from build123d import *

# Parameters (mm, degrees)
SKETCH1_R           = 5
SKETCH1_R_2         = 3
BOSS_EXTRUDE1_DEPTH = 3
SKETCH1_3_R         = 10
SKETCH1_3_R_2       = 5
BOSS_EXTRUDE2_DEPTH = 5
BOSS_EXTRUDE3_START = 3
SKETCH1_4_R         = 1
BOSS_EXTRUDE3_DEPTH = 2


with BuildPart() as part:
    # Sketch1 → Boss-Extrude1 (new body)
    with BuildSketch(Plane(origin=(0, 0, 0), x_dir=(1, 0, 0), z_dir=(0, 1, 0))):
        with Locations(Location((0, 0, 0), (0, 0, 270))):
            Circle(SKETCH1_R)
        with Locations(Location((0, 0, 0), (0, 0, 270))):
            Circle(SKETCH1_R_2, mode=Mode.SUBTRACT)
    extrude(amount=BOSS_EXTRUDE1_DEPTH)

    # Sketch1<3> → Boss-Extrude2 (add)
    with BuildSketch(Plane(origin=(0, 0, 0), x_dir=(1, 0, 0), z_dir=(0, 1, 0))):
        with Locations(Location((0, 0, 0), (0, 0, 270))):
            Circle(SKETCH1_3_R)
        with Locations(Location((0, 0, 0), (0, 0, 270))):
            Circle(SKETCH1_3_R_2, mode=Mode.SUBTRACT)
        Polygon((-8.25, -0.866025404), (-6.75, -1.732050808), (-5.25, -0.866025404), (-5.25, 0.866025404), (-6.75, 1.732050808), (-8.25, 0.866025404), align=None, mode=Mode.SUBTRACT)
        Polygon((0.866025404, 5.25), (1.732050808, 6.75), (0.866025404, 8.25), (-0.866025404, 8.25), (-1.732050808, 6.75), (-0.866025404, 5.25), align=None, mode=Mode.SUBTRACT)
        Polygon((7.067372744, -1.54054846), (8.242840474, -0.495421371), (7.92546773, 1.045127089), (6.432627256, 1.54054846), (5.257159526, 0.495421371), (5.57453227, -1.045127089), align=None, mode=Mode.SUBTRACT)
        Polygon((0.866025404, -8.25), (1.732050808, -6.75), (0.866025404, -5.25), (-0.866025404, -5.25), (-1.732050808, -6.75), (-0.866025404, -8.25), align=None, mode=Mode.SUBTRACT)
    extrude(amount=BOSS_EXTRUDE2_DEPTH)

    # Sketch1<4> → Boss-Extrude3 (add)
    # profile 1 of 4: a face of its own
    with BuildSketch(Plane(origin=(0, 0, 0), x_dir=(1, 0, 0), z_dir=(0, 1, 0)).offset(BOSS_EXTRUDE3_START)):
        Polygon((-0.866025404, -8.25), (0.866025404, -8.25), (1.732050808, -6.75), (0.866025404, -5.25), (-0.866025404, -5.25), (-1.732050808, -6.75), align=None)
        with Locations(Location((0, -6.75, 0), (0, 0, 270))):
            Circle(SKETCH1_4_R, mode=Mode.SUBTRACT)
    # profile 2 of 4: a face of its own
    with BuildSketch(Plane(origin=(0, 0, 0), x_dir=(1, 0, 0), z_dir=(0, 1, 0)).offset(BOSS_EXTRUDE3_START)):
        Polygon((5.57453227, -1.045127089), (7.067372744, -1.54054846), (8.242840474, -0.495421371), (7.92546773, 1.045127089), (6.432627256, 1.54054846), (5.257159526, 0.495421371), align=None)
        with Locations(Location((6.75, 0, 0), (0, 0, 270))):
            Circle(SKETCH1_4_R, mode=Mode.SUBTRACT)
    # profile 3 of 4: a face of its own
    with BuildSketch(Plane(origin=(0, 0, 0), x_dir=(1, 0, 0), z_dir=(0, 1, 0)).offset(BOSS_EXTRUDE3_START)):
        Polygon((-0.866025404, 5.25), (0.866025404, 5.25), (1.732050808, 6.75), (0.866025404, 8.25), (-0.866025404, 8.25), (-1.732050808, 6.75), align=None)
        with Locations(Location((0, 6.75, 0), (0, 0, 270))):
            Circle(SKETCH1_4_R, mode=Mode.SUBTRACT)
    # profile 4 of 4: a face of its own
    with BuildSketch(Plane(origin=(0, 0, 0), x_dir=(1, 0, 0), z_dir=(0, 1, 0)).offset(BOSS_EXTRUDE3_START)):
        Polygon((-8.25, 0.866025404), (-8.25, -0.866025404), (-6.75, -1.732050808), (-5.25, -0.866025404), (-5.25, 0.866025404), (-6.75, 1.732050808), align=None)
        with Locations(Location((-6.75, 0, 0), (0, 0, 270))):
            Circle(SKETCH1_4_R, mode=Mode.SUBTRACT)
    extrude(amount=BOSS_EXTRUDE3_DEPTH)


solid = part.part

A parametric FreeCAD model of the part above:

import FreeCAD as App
import Part
import Sketcher
from FreeCAD import Vector
Q = App.Units.Quantity

doc = App.newDocument("Part")
params = doc.addObject("Spreadsheet::Sheet", "Params")
for row, (alias, value) in enumerate([
    ("sketch1_diameter", "10 mm"),
    ("sketch1_diameter2", "6 mm"),
    ("pad1_length", "3 mm"),
    ("sketch2_diameter", "20 mm"),
    ("sketch2_diameter2", "10 mm"),
    ("pad2_length", "5 mm"),
    ("sketch3_diameter", "2 mm"),
    ("pad3_length", "2 mm"),
], start=1):
    params.set(f"A{row}", alias)
    params.set(f"B{row}", "=" + value)
    params.setAlias(f"B{row}", alias)

body = doc.addObject("PartDesign::Body", "Body")

sketch1 = body.newObject("Sketcher::SketchObject", "Sketch")
sketch1.AttachmentSupport = (doc.getObject("XZ_Plane"), [""])
sketch1.MapMode = "FlatFace"
sketch1.addGeometry(Part.Circle(Vector(0, 0, 0), Vector(0, 0, 1), 5), False)
sketch1.addGeometry(Part.Circle(Vector(0, 0, 0), Vector(0, 0, 1), 3), False)
sketch1.addConstraint(Sketcher.Constraint("Coincident", 0, 3, -1, 1))
sketch1.addConstraint(Sketcher.Constraint("Coincident", 1, 3, -1, 1))
sketch1.addConstraint(Sketcher.Constraint("Diameter", 0, Q("10 mm")))
sketch1.addConstraint(Sketcher.Constraint("Diameter", 1, Q("6 mm")))
sketch1.setExpression("Constraints[2]", "Params.sketch1_diameter")
sketch1.setExpression("Constraints[3]", "Params.sketch1_diameter2")
pad1 = body.newObject("PartDesign::Pad", "Pad")
pad1.Profile = sketch1
pad1.setExpression("Length", "Params.pad1_length")
pad1.Reversed = True

sketch2 = body.newObject("Sketcher::SketchObject", "Sketch001")
sketch2.AttachmentSupport = (doc.getObject("XZ_Plane"), [""])
sketch2.MapMode = "FlatFace"
sketch2.addGeometry(Part.Circle(Vector(0, 0, 0), Vector(0, 0, 1), 10), False)
sketch2.addGeometry(Part.LineSegment(Vector(-6.8, 1.7, 0), Vector(-8.2, 0.9, 0)), False)
sketch2.addGeometry(Part.LineSegment(Vector(-8.2, 0.9, 0), Vector(-8.2, -0.9, 0)), False)
sketch2.addGeometry(Part.LineSegment(Vector(-8.2, -0.9, 0), Vector(-6.8, -1.7, 0)), False)
sketch2.addGeometry(Part.LineSegment(Vector(-6.8, -1.7, 0), Vector(-5.2, -0.9, 0)), False)
sketch2.addGeometry(Part.LineSegment(Vector(-5.2, -0.9, 0), Vector(-5.2, 0.9, 0)), False)
sketch2.addGeometry(Part.LineSegment(Vector(-5.2, 0.9, 0), Vector(-6.8, 1.7, 0)), False)
sketch2.addGeometry(Part.LineSegment(Vector(1.7, -6.8, 0), Vector(0.9, -5.2, 0)), False)
sketch2.addGeometry(Part.LineSegment(Vector(0.9, -5.2, 0), Vector(-0.9, -5.2, 0)), False)
sketch2.addGeometry(Part.LineSegment(Vector(-0.9, -5.2, 0), Vector(-1.7, -6.8, 0)), False)
sketch2.addGeometry(Part.LineSegment(Vector(-1.7, -6.8, 0), Vector(-0.9, -8.2, 0)), False)
sketch2.addGeometry(Part.LineSegment(Vector(-0.9, -8.2, 0), Vector(0.9, -8.2, 0)), False)
sketch2.addGeometry(Part.LineSegment(Vector(0.9, -8.2, 0), Vector(1.7, -6.8, 0)), False)
sketch2.addGeometry(Part.LineSegment(Vector(8.2, 0.5, 0), Vector(7.1, 1.5, 0)), False)
sketch2.addGeometry(Part.LineSegment(Vector(7.1, 1.5, 0), Vector(5.6, 1, 0)), False)
sketch2.addGeometry(Part.LineSegment(Vector(5.6, 1, 0), Vector(5.3, -0.5, 0)), False)
sketch2.addGeometry(Part.LineSegment(Vector(5.3, -0.5, 0), Vector(6.4, -1.5, 0)), False)
sketch2.addGeometry(Part.LineSegment(Vector(6.4, -1.5, 0), Vector(7.9, -1, 0)), False)
sketch2.addGeometry(Part.LineSegment(Vector(7.9, -1, 0), Vector(8.2, 0.5, 0)), False)
sketch2.addGeometry(Part.Circle(Vector(0, 0, 0), Vector(0, 0, 1), 5), False)
sketch2.addGeometry(Part.LineSegment(Vector(1.7, 6.8, 0), Vector(0.9, 8.2, 0)), False)
sketch2.addGeometry(Part.LineSegment(Vector(0.9, 8.2, 0), Vector(-0.9, 8.2, 0)), False)
sketch2.addGeometry(Part.LineSegment(Vector(-0.9, 8.2, 0), Vector(-1.7, 6.8, 0)), False)
sketch2.addGeometry(Part.LineSegment(Vector(-1.7, 6.8, 0), Vector(-0.9, 5.2, 0)), False)
sketch2.addGeometry(Part.LineSegment(Vector(-0.9, 5.2, 0), Vector(0.9, 5.2, 0)), False)
sketch2.addGeometry(Part.LineSegment(Vector(0.9, 5.2, 0), Vector(1.7, 6.8, 0)), False)
sketch2.addConstraint(Sketcher.Constraint("Coincident", 1, 2, 2, 1))
sketch2.addConstraint(Sketcher.Constraint("Coincident", 2, 2, 3, 1))
sketch2.addConstraint(Sketcher.Constraint("Coincident", 3, 2, 4, 1))
sketch2.addConstraint(Sketcher.Constraint("Coincident", 4, 2, 5, 1))
sketch2.addConstraint(Sketcher.Constraint("Coincident", 5, 2, 6, 1))
sketch2.addConstraint(Sketcher.Constraint("Coincident", 6, 2, 1, 1))
sketch2.addConstraint(Sketcher.Constraint("Coincident", 7, 2, 8, 1))
sketch2.addConstraint(Sketcher.Constraint("Coincident", 8, 2, 9, 1))
sketch2.addConstraint(Sketcher.Constraint("Coincident", 9, 2, 10, 1))
sketch2.addConstraint(Sketcher.Constraint("Coincident", 10, 2, 11, 1))
sketch2.addConstraint(Sketcher.Constraint("Coincident", 11, 2, 12, 1))
sketch2.addConstraint(Sketcher.Constraint("Coincident", 12, 2, 7, 1))
sketch2.addConstraint(Sketcher.Constraint("Coincident", 13, 2, 14, 1))
sketch2.addConstraint(Sketcher.Constraint("Coincident", 14, 2, 15, 1))
sketch2.addConstraint(Sketcher.Constraint("Coincident", 15, 2, 16, 1))
sketch2.addConstraint(Sketcher.Constraint("Coincident", 16, 2, 17, 1))
sketch2.addConstraint(Sketcher.Constraint("Coincident", 17, 2, 18, 1))
sketch2.addConstraint(Sketcher.Constraint("Coincident", 18, 2, 13, 1))
sketch2.addConstraint(Sketcher.Constraint("Coincident", 20, 2, 21, 1))
sketch2.addConstraint(Sketcher.Constraint("Coincident", 21, 2, 22, 1))
sketch2.addConstraint(Sketcher.Constraint("Coincident", 22, 2, 23, 1))
sketch2.addConstraint(Sketcher.Constraint("Coincident", 23, 2, 24, 1))
sketch2.addConstraint(Sketcher.Constraint("Coincident", 24, 2, 25, 1))
sketch2.addConstraint(Sketcher.Constraint("Coincident", 25, 2, 20, 1))
sketch2.addConstraint(Sketcher.Constraint("Vertical", 2))
sketch2.addConstraint(Sketcher.Constraint("Vertical", 5))
sketch2.addConstraint(Sketcher.Constraint("Horizontal", 8))
sketch2.addConstraint(Sketcher.Constraint("Horizontal", 11))
sketch2.addConstraint(Sketcher.Constraint("Horizontal", 21))
sketch2.addConstraint(Sketcher.Constraint("Horizontal", 24))
sketch2.addConstraint(Sketcher.Constraint("Coincident", 0, 3, -1, 1))
sketch2.addConstraint(Sketcher.Constraint("Coincident", 19, 3, -1, 1))
sketch2.addConstraint(Sketcher.Constraint("Symmetric", 10, 2, 20, 2, -1, 1))
sketch2.addConstraint(Sketcher.Constraint("Symmetric", 12, 2, 22, 2, -1, 1))
sketch2.addConstraint(Sketcher.Constraint("Symmetric", 7, 2, 23, 2, -1, 1))
sketch2.addConstraint(Sketcher.Constraint("Symmetric", 9, 2, 25, 2, -1, 1))
sketch2.addConstraint(Sketcher.Constraint("Symmetric", 9, 2, 12, 2, -2))
sketch2.addConstraint(Sketcher.Constraint("Symmetric", 3, 2, 6, 2, -1))
sketch2.addConstraint(Sketcher.Constraint("Parallel", 1, 4))
sketch2.addConstraint(Sketcher.Constraint("Parallel", 3, 6))
sketch2.addConstraint(Sketcher.Constraint("Perpendicular", 4, 7))
sketch2.addConstraint(Sketcher.Constraint("Perpendicular", 6, 9))
sketch2.addConstraint(Sketcher.Constraint("Parallel", 7, 10))
sketch2.addConstraint(Sketcher.Constraint("Parallel", 9, 12))
sketch2.addConstraint(Sketcher.Constraint("Parallel", 13, 16))
sketch2.addConstraint(Sketcher.Constraint("Parallel", 14, 17))
sketch2.addConstraint(Sketcher.Constraint("Parallel", 15, 18))
sketch2.addConstraint(Sketcher.Constraint("Parallel", 12, 22))
sketch2.addConstraint(Sketcher.Constraint("Parallel", 22, 25))
sketch2.addConstraint(Sketcher.Constraint("Horizontal", 2, 2, 4, 2))
sketch2.addConstraint(Sketcher.Constraint("Horizontal", 1, 2, 5, 2))
sketch2.addConstraint(Sketcher.Constraint("Vertical", 8, 2, 10, 2))
sketch2.addConstraint(Sketcher.Constraint("Equal", 24, 2))
sketch2.addConstraint(Sketcher.Constraint("Equal", 6, 7))
sketch2.addConstraint(Sketcher.Constraint("Equal", 13, 14))
sketch2.addConstraint(Sketcher.Constraint("Equal", 14, 15))
sketch2.addConstraint(Sketcher.Constraint("Equal", 15, 16))
sketch2.addConstraint(Sketcher.Constraint("Diameter", 0, Q("20 mm")))
sketch2.addConstraint(Sketcher.Constraint("Diameter", 19, Q("10 mm")))
sketch2.addConstraint(Sketcher.Constraint("Angle", 1, Q("-150 deg")))
sketch2.addConstraint(Sketcher.Constraint("DistanceX", 2, 2, 4, 2, Q("3 mm")))
sketch2.addConstraint(Sketcher.Constraint("DistanceX", 1, 2, -1, 1, Q("8.25 mm")))
sketch2.addConstraint(Sketcher.Constraint("DistanceY", 7, 2, -1, 1, Q("5.25 mm")))
sketch2.addConstraint(Sketcher.Constraint("Distance", 13, Q("1.5729 mm")))
sketch2.addConstraint(Sketcher.Constraint("DistanceX", 8, 2, 8, 1, Q("1.732051 mm")))
sketch2.addConstraint(Sketcher.Constraint("DistanceX", 8, 2, 13, 2, Q("7.933398 mm")))
sketch2.addConstraint(Sketcher.Constraint("DistanceY", -1, 1, 13, 2, Q("1.540548 mm")))
sketch2.addConstraint(Sketcher.Constraint("DistanceX", -1, 1, 15, 2, Q("5.25716 mm")))
sketch2.addConstraint(Sketcher.Constraint("DistanceY", 15, 2, -1, 1, Q("0.495421 mm")))
sketch2.addConstraint(Sketcher.Constraint("DistanceY", 16, 2, -1, 1, Q("1.540548 mm")))
sketch2.setExpression("Constraints[57]", "Params.sketch2_diameter")
sketch2.setExpression("Constraints[58]", "Params.sketch2_diameter2")
pad2 = body.newObject("PartDesign::Pad", "Pad001")
pad2.Profile = sketch2
pad2.setExpression("Length", "Params.pad2_length")
pad2.Reversed = True

sketch3 = body.newObject("Sketcher::SketchObject", "Sketch002")
sketch3.AttachmentSupport = (doc.getObject("XZ_Plane"), [""])
sketch3.MapMode = "FlatFace"
sketch3.AttachmentOffset = App.Placement(Vector(0, 0, -3), App.Rotation())
sketch3.addGeometry(Part.LineSegment(Vector(-0.9, 8.2, 0), Vector(0.9, 8.2, 0)), False)
sketch3.addGeometry(Part.LineSegment(Vector(0.9, 8.2, 0), Vector(1.7, 6.8, 0)), False)
sketch3.addGeometry(Part.LineSegment(Vector(1.7, 6.8, 0), Vector(0.9, 5.2, 0)), False)
sketch3.addGeometry(Part.LineSegment(Vector(0.9, 5.2, 0), Vector(-0.9, 5.2, 0)), False)
sketch3.addGeometry(Part.LineSegment(Vector(-0.9, 5.2, 0), Vector(-1.7, 6.8, 0)), False)
sketch3.addGeometry(Part.LineSegment(Vector(-1.7, 6.8, 0), Vector(-0.9, 8.2, 0)), False)
sketch3.addGeometry(Part.Circle(Vector(0, 6.8, 0), Vector(0, 0, 1), 1), False)
sketch3.addGeometry(Part.LineSegment(Vector(5.6, 1, 0), Vector(7.1, 1.5, 0)), False)
sketch3.addGeometry(Part.LineSegment(Vector(7.1, 1.5, 0), Vector(8.2, 0.5, 0)), False)
sketch3.addGeometry(Part.LineSegment(Vector(8.2, 0.5, 0), Vector(7.9, -1, 0)), False)
sketch3.addGeometry(Part.LineSegment(Vector(7.9, -1, 0), Vector(6.4, -1.5, 0)), False)
sketch3.addGeometry(Part.LineSegment(Vector(6.4, -1.5, 0), Vector(5.3, -0.5, 0)), False)
sketch3.addGeometry(Part.LineSegment(Vector(5.3, -0.5, 0), Vector(5.6, 1, 0)), False)
sketch3.addGeometry(Part.Circle(Vector(6.8, 0, 0), Vector(0, 0, 1), 1), False)
sketch3.addGeometry(Part.LineSegment(Vector(-0.9, -5.2, 0), Vector(0.9, -5.2, 0)), False)
sketch3.addGeometry(Part.LineSegment(Vector(0.9, -5.2, 0), Vector(1.7, -6.8, 0)), False)
sketch3.addGeometry(Part.LineSegment(Vector(1.7, -6.8, 0), Vector(0.9, -8.2, 0)), False)
sketch3.addGeometry(Part.LineSegment(Vector(0.9, -8.2, 0), Vector(-0.9, -8.2, 0)), False)
sketch3.addGeometry(Part.LineSegment(Vector(-0.9, -8.2, 0), Vector(-1.7, -6.8, 0)), False)
sketch3.addGeometry(Part.LineSegment(Vector(-1.7, -6.8, 0), Vector(-0.9, -5.2, 0)), False)
sketch3.addGeometry(Part.Circle(Vector(0, -6.8, 0), Vector(0, 0, 1), 1), False)
sketch3.addGeometry(Part.LineSegment(Vector(-8.2, -0.9, 0), Vector(-8.2, 0.9, 0)), False)
sketch3.addGeometry(Part.LineSegment(Vector(-8.2, 0.9, 0), Vector(-6.8, 1.7, 0)), False)
sketch3.addGeometry(Part.LineSegment(Vector(-6.8, 1.7, 0), Vector(-5.2, 0.9, 0)), False)
sketch3.addGeometry(Part.LineSegment(Vector(-5.2, 0.9, 0), Vector(-5.2, -0.9, 0)), False)
sketch3.addGeometry(Part.LineSegment(Vector(-5.2, -0.9, 0), Vector(-6.8, -1.7, 0)), False)
sketch3.addGeometry(Part.LineSegment(Vector(-6.8, -1.7, 0), Vector(-8.2, -0.9, 0)), False)
sketch3.addGeometry(Part.Circle(Vector(-6.8, 0, 0), Vector(0, 0, 1), 1), False)
sketch3.addConstraint(Sketcher.Constraint("Coincident", 0, 2, 1, 1))
sketch3.addConstraint(Sketcher.Constraint("Coincident", 1, 2, 2, 1))
sketch3.addConstraint(Sketcher.Constraint("Coincident", 2, 2, 3, 1))
sketch3.addConstraint(Sketcher.Constraint("Coincident", 3, 2, 4, 1))
sketch3.addConstraint(Sketcher.Constraint("Coincident", 4, 2, 5, 1))
sketch3.addConstraint(Sketcher.Constraint("Coincident", 5, 2, 0, 1))
sketch3.addConstraint(Sketcher.Constraint("Coincident", 7, 2, 8, 1))
sketch3.addConstraint(Sketcher.Constraint("Coincident", 8, 2, 9, 1))
sketch3.addConstraint(Sketcher.Constraint("Coincident", 9, 2, 10, 1))
sketch3.addConstraint(Sketcher.Constraint("Coincident", 10, 2, 11, 1))
sketch3.addConstraint(Sketcher.Constraint("Coincident", 11, 2, 12, 1))
sketch3.addConstraint(Sketcher.Constraint("Coincident", 12, 2, 7, 1))
sketch3.addConstraint(Sketcher.Constraint("Coincident", 14, 2, 15, 1))
sketch3.addConstraint(Sketcher.Constraint("Coincident", 15, 2, 16, 1))
sketch3.addConstraint(Sketcher.Constraint("Coincident", 16, 2, 17, 1))
sketch3.addConstraint(Sketcher.Constraint("Coincident", 17, 2, 18, 1))
sketch3.addConstraint(Sketcher.Constraint("Coincident", 18, 2, 19, 1))
sketch3.addConstraint(Sketcher.Constraint("Coincident", 19, 2, 14, 1))
sketch3.addConstraint(Sketcher.Constraint("Coincident", 21, 2, 22, 1))
sketch3.addConstraint(Sketcher.Constraint("Coincident", 22, 2, 23, 1))
sketch3.addConstraint(Sketcher.Constraint("Coincident", 23, 2, 24, 1))
sketch3.addConstraint(Sketcher.Constraint("Coincident", 24, 2, 25, 1))
sketch3.addConstraint(Sketcher.Constraint("Coincident", 25, 2, 26, 1))
sketch3.addConstraint(Sketcher.Constraint("Coincident", 26, 2, 21, 1))
sketch3.addConstraint(Sketcher.Constraint("Horizontal", 0))
sketch3.addConstraint(Sketcher.Constraint("Horizontal", 3))
sketch3.addConstraint(Sketcher.Constraint("Horizontal", 14))
sketch3.addConstraint(Sketcher.Constraint("Horizontal", 17))
sketch3.addConstraint(Sketcher.Constraint("Vertical", 21))
sketch3.addConstraint(Sketcher.Constraint("Vertical", 24))
sketch3.addConstraint(Sketcher.Constraint("Equal", 6, 13))
sketch3.addConstraint(Sketcher.Constraint("Equal", 13, 20))
sketch3.addConstraint(Sketcher.Constraint("Equal", 20, 27))
sketch3.addConstraint(Sketcher.Constraint("Symmetric", 6, 3, 20, 3, -1, 1))
sketch3.addConstraint(Sketcher.Constraint("Symmetric", 13, 3, 27, 3, -1, 1))
sketch3.addConstraint(Sketcher.Constraint("Symmetric", 3, 2, 14, 2, -1, 1))
sketch3.addConstraint(Sketcher.Constraint("Symmetric", 4, 2, 15, 2, -1, 1))
sketch3.addConstraint(Sketcher.Constraint("Symmetric", 5, 2, 16, 2, -1, 1))
sketch3.addConstraint(Sketcher.Constraint("Symmetric", 1, 2, 18, 2, -1, 1))
sketch3.addConstraint(Sketcher.Constraint("Symmetric", 1, 2, 4, 2, -2))
sketch3.addConstraint(Sketcher.Constraint("Symmetric", 22, 2, 25, 2, -1))
sketch3.addConstraint(Sketcher.Constraint("PointOnObject", 6, 3, -2))
sketch3.addConstraint(Sketcher.Constraint("PointOnObject", 13, 3, -1))
sketch3.addConstraint(Sketcher.Constraint("Parallel", 1, 4))
sketch3.addConstraint(Sketcher.Constraint("Parallel", 2, 5))
sketch3.addConstraint(Sketcher.Constraint("Parallel", 7, 10))
sketch3.addConstraint(Sketcher.Constraint("Parallel", 8, 11))
sketch3.addConstraint(Sketcher.Constraint("Parallel", 9, 12))
sketch3.addConstraint(Sketcher.Constraint("Parallel", 15, 18))
sketch3.addConstraint(Sketcher.Constraint("Parallel", 16, 19))
sketch3.addConstraint(Sketcher.Constraint("Perpendicular", 18, 22))
sketch3.addConstraint(Sketcher.Constraint("Perpendicular", 19, 23))
sketch3.addConstraint(Sketcher.Constraint("Parallel", 22, 25))
sketch3.addConstraint(Sketcher.Constraint("Parallel", 23, 26))
sketch3.addConstraint(Sketcher.Constraint("Horizontal", 6, 3, 1, 2))
sketch3.addConstraint(Sketcher.Constraint("Horizontal", 21, 2, 23, 2))
sketch3.addConstraint(Sketcher.Constraint("Horizontal", 24, 2, 26, 2))
sketch3.addConstraint(Sketcher.Constraint("Vertical", 0, 2, 2, 2))
sketch3.addConstraint(Sketcher.Constraint("Vertical", 27, 3, 22, 2))
sketch3.addConstraint(Sketcher.Constraint("Equal", 17, 21))
sketch3.addConstraint(Sketcher.Constraint("Equal", 7, 8))
sketch3.addConstraint(Sketcher.Constraint("Equal", 8, 9))
sketch3.addConstraint(Sketcher.Constraint("Equal", 9, 10))
sketch3.addConstraint(Sketcher.Constraint("Equal", 19, 22))
sketch3.addConstraint(Sketcher.Constraint("Diameter", 6, Q("2 mm")))
sketch3.addConstraint(Sketcher.Constraint("Angle", 1, Q("-60 deg")))
sketch3.addConstraint(Sketcher.Constraint("DistanceY", 20, 3, 0, 2, Q("15 mm")))
sketch3.addConstraint(Sketcher.Constraint("DistanceY", 2, 2, 0, 2, Q("3 mm")))
sketch3.addConstraint(Sketcher.Constraint("DistanceX", 27, 3, 13, 3, Q("13.5 mm")))
sketch3.addConstraint(Sketcher.Constraint("Distance", 7, Q("1.5729 mm")))
sketch3.addConstraint(Sketcher.Constraint("DistanceX", 0, 1, 0, 2, Q("1.732051 mm")))
sketch3.addConstraint(Sketcher.Constraint("DistanceX", 3, 2, 7, 2, Q("7.933398 mm")))
sketch3.addConstraint(Sketcher.Constraint("DistanceX", 14, 2, 10, 2, Q("5.566602 mm")))
sketch3.addConstraint(Sketcher.Constraint("DistanceY", -1, 1, 7, 2, Q("1.540548 mm")))
sketch3.addConstraint(Sketcher.Constraint("DistanceX", -1, 1, 8, 2, Q("8.24284 mm")))
sketch3.addConstraint(Sketcher.Constraint("DistanceY", 10, 2, -1, 1, Q("1.540548 mm")))
sketch3.setExpression("Constraints[64]", "Params.sketch3_diameter")
pad3 = body.newObject("PartDesign::Pad", "Pad002")
pad3.Profile = sketch3
pad3.setExpression("Length", "Params.pad3_length")
pad3.Reversed = True

doc.recompute()
